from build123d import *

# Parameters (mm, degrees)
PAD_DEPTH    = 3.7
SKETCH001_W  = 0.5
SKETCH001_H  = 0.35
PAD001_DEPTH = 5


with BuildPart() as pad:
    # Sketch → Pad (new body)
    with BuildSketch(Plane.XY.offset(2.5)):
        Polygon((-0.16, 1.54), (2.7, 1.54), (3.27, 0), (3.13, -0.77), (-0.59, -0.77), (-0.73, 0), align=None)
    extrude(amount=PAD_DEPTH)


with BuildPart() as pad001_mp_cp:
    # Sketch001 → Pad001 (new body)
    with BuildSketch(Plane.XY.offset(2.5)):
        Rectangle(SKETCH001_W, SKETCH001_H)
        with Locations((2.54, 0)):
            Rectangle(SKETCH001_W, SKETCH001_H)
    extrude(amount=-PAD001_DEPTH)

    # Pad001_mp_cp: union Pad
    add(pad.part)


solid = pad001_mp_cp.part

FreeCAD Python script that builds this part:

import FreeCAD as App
import Part
import Sketcher
from FreeCAD import Vector

doc = App.newDocument("Part")
body = doc.addObject("PartDesign::Body", "Body")

# Sketch on XY plane
sketch1 = body.newObject("Sketcher::SketchObject", "Sketch")
sketch1.AttachmentSupport = (doc.getObject("XY_Plane"), [""])
sketch1.MapMode = "FlatFace"
sketch1.AttachmentOffset = App.Placement(Vector(0, 0, 2.5), App.Rotation())
sketch1.addGeometry(Part.LineSegment(Vector(2.7, 1.54, 0), Vector(-0.16, 1.54, 0)), False)
sketch1.addGeometry(Part.LineSegment(Vector(-0.16, 1.54, 0), Vector(-0.73, 0, 0)), False)
sketch1.addGeometry(Part.LineSegment(Vector(-0.73, 0, 0), Vector(-0.59, -0.77, 0)), False)
sketch1.addGeometry(Part.LineSegment(Vector(-0.59, -0.77, 0), Vector(3.13, -0.77, 0)), False)
sketch1.addGeometry(Part.LineSegment(Vector(3.13, -0.77, 0), Vector(3.27, 0, 0)), False)
sketch1.addGeometry(Part.LineSegment(Vector(3.27, 0, 0), Vector(2.7, 1.54, 0)), False)
sketch1.addConstraint(Sketcher.Constraint("Coincident", 0, 2, 1, 1))
sketch1.addConstraint(Sketcher.Constraint("Coincident", 1, 2, 2, 1))
sketch1.addConstraint(Sketcher.Constraint("Coincident", 2, 2, 3, 1))
sketch1.addConstraint(Sketcher.Constraint("Coincident", 3, 2, 4, 1))
sketch1.addConstraint(Sketcher.Constraint("Coincident", 4, 2, 5, 1))
sketch1.addConstraint(Sketcher.Constraint("Coincident", 5, 2, 0, 1))
sketch1.addConstraint(Sketcher.Constraint("Horizontal", 0))
sketch1.addConstraint(Sketcher.Constraint("Horizontal", 3))
sketch1.addConstraint(Sketcher.Constraint("PointOnObject", 1, 2, -1))
sketch1.addConstraint(Sketcher.Constraint("PointOnObject", 4, 2, -1))
sketch1.addConstraint(Sketcher.Constraint("Equal", 2, 4))
sketch1.addConstraint(Sketcher.Constraint("Equal", 1, 5))
sketch1.addConstraint(Sketcher.Constraint("DistanceX", 1, 2, 4, 2, 4.0))
sketch1.addConstraint(Sketcher.Constraint("DistanceX", 0, 2, 0, 1, 2.86))
sketch1.addConstraint(Sketcher.Constraint("DistanceX", 3, 1, 3, 2, 3.72))
sketch1.addConstraint(Sketcher.Constraint("DistanceX", -1, 1, 5, 2, 2.7))
sketch1.addConstraint(Sketcher.Constraint("DistanceY", -1, 1, 0, 2, 1.54))
sketch1.addConstraint(Sketcher.Constraint("DistanceY", 2, 2, -1, 1, 0.77))
pad1 = body.newObject("PartDesign::Pad", "Pad")
pad1.Profile = sketch1
pad1.Length = 3.7
body2 = doc.addObject("PartDesign::Body", "Body001")
body2.AllowCompound = True

# Sketch on XY plane
sketch2 = body2.newObject("Sketcher::SketchObject", "Sketch001")
sketch2.AttachmentSupport = (doc.getObject("XY_Plane001"), [""])
sketch2.MapMode = "FlatFace"
sketch2.AttachmentOffset = App.Placement(Vector(0, 0, 2.5), App.Rotation())
sketch2.addGeometry(Part.LineSegment(Vector(-0.25, 0.175, 0), Vector(-0.25, -0.175, 0)), False)
sketch2.addGeometry(Part.LineSegment(Vector(-0.25, -0.175, 0), Vector(0.25, -0.175, 0)), False)
sketch2.addGeometry(Part.LineSegment(Vector(0.25, -0.175, 0), Vector(0.25, 0.175, 0)), False)
sketch2.addGeometry(Part.LineSegment(Vector(0.25, 0.175, 0), Vector(-0.25, 0.175, 0)), False)
sketch2.addGeometry(Part.LineSegment(Vector(2.29, 0.175, 0), Vector(2.29, -0.175, 0)), False)
sketch2.addGeometry(Part.LineSegment(Vector(2.29, -0.175, 0), Vector(2.79, -0.175, 0)), False)
sketch2.addGeometry(Part.LineSegment(Vector(2.79, -0.175, 0), Vector(2.79, 0.175, 0)), False)
sketch2.addGeometry(Part.LineSegment(Vector(2.79, 0.175, 0), Vector(2.29, 0.175, 0)), False)
sketch2.addConstraint(Sketcher.Constraint("Coincident", 0, 2, 1, 1))
sketch2.addConstraint(Sketcher.Constraint("Coincident", 1, 2, 2, 1))
sketch2.addConstraint(Sketcher.Constraint("Coincident", 2, 2, 3, 1))
sketch2.addConstraint(Sketcher.Constraint("Coincident", 3, 2, 0, 1))
sketch2.addConstraint(Sketcher.Constraint("Coincident", 4, 2, 5, 1))
sketch2.addConstraint(Sketcher.Constraint("Coincident", 5, 2, 6, 1))
sketch2.addConstraint(Sketcher.Constraint("Coincident", 6, 2, 7, 1))
sketch2.addConstraint(Sketcher.Constraint("Coincident", 7, 2, 4, 1))
sketch2.addConstraint(Sketcher.Constraint("Vertical", 0))
sketch2.addConstraint(Sketcher.Constraint("Horizontal", 1))
sketch2.addConstraint(Sketcher.Constraint("Vertical", 2))
sketch2.addConstraint(Sketcher.Constraint("Horizontal", 3))
sketch2.addConstraint(Sketcher.Constraint("Vertical", 4))
sketch2.addConstraint(Sketcher.Constraint("Horizontal", 5))
sketch2.addConstraint(Sketcher.Constraint("Vertical", 6))
sketch2.addConstraint(Sketcher.Constraint("Horizontal", 7))
sketch2.addConstraint(Sketcher.Constraint("Symmetric", 0, 2, 2, 2, -1, 1))
sketch2.addConstraint(Sketcher.Constraint("Horizontal", 1, 2, 4, 2))
sketch2.addConstraint(Sketcher.Constraint("Horizontal", 3, 2, 6, 2))
sketch2.addConstraint(Sketcher.Constraint("Equal", 3, 5))
sketch2.addConstraint(Sketcher.Constraint("DistanceX", 1, 1, 1, 2, 0.5))
sketch2.addConstraint(Sketcher.Constraint("DistanceY", 0, 2, 0, 1, 0.35))
sketch2.addConstraint(Sketcher.Constraint("DistanceX", -1, 1, 4, 2, 2.29))
pad2 = body2.newObject("PartDesign::Pad", "Pad001")
pad2.Profile = sketch2
pad2.Length = 5
pad2.Reversed = True
doc.recompute()

boolean = body2.newObject("PartDesign::Boolean", "Boolean")
boolean.Type = "Fuse"
boolean.addObjects([body])

doc.recompute()
